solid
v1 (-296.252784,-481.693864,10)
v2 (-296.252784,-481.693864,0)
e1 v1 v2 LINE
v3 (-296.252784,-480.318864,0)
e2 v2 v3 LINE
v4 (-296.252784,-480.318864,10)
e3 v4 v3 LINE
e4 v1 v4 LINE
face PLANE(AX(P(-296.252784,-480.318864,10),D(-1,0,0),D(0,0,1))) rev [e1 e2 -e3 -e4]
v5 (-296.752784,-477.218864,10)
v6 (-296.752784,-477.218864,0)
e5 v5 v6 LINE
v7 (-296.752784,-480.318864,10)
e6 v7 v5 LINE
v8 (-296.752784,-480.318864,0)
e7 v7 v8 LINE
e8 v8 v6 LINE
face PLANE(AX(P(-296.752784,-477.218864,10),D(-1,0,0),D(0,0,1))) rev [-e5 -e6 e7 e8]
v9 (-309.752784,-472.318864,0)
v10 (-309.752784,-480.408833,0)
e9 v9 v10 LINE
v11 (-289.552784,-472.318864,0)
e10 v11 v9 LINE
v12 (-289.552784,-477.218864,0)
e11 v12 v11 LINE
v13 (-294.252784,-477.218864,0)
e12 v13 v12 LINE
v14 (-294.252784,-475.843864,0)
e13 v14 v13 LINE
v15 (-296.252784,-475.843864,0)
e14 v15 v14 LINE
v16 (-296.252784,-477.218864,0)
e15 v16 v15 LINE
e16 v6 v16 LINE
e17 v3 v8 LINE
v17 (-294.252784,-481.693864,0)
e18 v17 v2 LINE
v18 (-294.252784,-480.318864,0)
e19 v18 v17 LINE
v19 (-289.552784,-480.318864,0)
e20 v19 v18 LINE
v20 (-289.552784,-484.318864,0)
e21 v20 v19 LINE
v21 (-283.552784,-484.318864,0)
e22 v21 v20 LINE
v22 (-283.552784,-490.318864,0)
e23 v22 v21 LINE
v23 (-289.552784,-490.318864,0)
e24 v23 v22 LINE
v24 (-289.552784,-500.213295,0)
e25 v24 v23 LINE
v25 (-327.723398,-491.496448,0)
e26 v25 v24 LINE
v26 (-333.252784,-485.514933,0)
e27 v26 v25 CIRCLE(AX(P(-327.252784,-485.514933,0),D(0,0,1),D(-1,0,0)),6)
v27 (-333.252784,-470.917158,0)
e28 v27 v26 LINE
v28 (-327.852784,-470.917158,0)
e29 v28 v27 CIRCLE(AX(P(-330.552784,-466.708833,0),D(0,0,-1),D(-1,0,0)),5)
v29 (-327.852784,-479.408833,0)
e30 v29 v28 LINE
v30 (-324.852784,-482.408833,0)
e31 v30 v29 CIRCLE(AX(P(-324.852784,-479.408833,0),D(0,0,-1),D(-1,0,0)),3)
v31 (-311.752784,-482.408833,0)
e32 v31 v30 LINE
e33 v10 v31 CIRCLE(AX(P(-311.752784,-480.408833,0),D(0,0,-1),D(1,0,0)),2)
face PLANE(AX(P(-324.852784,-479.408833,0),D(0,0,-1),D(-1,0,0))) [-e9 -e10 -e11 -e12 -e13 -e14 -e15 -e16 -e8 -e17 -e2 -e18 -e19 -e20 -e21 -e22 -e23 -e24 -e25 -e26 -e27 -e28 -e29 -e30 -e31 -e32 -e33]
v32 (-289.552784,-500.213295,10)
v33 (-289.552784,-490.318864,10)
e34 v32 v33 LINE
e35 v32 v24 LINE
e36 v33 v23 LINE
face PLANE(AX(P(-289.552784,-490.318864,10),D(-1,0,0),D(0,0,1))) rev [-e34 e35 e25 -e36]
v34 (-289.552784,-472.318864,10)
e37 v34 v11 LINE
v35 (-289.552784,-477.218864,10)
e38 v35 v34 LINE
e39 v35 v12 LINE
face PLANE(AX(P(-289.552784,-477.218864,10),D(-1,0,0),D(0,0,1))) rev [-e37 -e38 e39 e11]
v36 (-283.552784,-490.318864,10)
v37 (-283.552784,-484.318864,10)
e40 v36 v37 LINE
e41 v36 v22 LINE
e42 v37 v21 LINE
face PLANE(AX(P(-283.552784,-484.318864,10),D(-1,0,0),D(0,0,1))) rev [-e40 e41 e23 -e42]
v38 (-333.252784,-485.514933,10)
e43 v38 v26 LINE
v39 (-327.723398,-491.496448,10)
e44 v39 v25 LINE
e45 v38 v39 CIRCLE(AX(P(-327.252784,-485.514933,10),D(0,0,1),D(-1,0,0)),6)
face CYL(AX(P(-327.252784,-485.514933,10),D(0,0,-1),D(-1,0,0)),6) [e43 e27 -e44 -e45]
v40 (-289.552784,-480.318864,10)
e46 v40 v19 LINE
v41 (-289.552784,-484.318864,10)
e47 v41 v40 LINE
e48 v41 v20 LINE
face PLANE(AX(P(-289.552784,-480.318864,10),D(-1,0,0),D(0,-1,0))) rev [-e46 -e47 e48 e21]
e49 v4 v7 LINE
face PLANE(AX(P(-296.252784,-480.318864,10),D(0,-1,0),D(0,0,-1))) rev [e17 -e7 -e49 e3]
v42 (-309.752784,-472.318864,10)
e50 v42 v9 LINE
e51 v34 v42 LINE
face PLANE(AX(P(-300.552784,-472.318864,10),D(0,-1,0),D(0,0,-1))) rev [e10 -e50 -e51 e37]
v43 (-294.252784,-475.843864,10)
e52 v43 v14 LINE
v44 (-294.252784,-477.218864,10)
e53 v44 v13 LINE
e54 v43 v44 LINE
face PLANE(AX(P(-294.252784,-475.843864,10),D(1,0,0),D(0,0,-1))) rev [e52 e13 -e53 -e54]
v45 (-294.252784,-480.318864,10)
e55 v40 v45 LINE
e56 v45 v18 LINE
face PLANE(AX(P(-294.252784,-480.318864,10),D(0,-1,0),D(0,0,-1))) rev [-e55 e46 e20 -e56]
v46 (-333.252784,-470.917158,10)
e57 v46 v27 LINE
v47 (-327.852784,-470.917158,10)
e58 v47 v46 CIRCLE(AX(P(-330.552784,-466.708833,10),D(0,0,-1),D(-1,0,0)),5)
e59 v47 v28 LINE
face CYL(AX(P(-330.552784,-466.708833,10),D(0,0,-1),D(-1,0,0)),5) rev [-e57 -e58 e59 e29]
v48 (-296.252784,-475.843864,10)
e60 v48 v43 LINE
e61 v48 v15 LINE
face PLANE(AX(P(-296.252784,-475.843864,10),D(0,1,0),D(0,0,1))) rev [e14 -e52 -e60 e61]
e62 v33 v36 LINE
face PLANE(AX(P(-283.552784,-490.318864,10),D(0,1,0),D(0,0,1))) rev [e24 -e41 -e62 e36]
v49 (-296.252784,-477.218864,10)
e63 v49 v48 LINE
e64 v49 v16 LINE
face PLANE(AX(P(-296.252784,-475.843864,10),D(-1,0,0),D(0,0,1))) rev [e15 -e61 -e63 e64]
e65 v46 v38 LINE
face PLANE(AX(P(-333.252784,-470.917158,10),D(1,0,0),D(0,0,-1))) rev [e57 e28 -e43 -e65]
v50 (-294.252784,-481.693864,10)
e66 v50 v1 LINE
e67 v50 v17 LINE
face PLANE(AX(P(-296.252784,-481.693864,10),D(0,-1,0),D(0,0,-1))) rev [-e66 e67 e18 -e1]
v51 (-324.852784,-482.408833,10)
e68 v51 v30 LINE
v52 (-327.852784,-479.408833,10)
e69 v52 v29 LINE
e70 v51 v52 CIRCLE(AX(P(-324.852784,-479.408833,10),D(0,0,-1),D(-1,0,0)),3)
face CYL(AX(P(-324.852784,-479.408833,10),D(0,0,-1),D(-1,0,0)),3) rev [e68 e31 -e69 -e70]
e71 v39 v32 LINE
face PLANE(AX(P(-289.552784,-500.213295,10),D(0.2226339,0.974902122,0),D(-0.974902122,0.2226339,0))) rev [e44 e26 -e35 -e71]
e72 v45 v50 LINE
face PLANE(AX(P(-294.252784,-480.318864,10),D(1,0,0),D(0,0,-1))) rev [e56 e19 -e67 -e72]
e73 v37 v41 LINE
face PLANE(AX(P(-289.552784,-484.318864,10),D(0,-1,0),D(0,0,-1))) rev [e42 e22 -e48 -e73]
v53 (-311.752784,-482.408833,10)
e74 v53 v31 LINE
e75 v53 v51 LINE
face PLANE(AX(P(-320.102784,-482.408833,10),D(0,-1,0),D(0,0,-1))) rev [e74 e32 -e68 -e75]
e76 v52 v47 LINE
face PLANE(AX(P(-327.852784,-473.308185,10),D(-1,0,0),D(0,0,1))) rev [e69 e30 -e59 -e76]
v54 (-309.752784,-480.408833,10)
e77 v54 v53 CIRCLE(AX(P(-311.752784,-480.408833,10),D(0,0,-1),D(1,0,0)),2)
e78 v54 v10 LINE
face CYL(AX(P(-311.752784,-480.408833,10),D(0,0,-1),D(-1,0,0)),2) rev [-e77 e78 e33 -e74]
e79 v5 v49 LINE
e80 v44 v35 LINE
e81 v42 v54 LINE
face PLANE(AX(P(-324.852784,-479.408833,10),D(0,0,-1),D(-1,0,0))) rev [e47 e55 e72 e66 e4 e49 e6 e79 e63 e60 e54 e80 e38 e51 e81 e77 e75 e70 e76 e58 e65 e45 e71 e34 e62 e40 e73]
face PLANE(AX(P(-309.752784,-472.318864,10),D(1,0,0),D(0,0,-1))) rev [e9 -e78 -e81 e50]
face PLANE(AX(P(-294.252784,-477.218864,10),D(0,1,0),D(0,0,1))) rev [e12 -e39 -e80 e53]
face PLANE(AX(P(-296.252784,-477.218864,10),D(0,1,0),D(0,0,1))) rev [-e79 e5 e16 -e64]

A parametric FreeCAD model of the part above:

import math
import FreeCAD as App
import Part
import Sketcher
Q = App.Units.Quantity

doc = App.newDocument("Part")
body = doc.addObject("PartDesign::Body", "Body")

# Sketch on XY plane
sketch1 = body.newObject("Sketcher::SketchObject", "Sketch")
sketch1.AttachmentSupport = (doc.getObject("XY_Plane"), [""])
sketch1.MapMode = "FlatFace"
sketch1.addGeometry(Part.ArcOfCircle(Part.Circle(App.Vector(-324.9, -479.4, 0), App.Vector(0, 0, 1), 3), math.radians(180), math.radians(270)), False)
sketch1.addGeometry(Part.LineSegment(App.Vector(-327.9, -479.4, 0), App.Vector(-327.9, -470.9, 0)), False)
sketch1.addGeometry(Part.ArcOfCircle(Part.Circle(App.Vector(-330.6, -466.7, 0), App.Vector(0, 0, 1), 5), math.radians(-123), math.radians(-57)), False)
sketch1.addGeometry(Part.LineSegment(App.Vector(-333.3, -470.9, 0), App.Vector(-333.3, -485.5, 0)), False)
sketch1.addGeometry(Part.ArcOfCircle(Part.Circle(App.Vector(-327.3, -485.5, 0), App.Vector(0, 0, 1), 6), math.radians(180), math.radians(266)), False)
sketch1.addGeometry(Part.LineSegment(App.Vector(-327.7, -491.5, 0), App.Vector(-289.6, -500.2, 0)), False)
sketch1.addGeometry(Part.LineSegment(App.Vector(-289.6, -500.2, 0), App.Vector(-289.6, -490.3, 0)), False)
sketch1.addGeometry(Part.LineSegment(App.Vector(-289.6, -490.3, 0), App.Vector(-283.6, -490.3, 0)), False)
sketch1.addGeometry(Part.LineSegment(App.Vector(-283.6, -490.3, 0), App.Vector(-283.6, -484.3, 0)), False)
sketch1.addGeometry(Part.LineSegment(App.Vector(-283.6, -484.3, 0), App.Vector(-289.6, -484.3, 0)), False)
sketch1.addGeometry(Part.LineSegment(App.Vector(-289.6, -484.3, 0), App.Vector(-289.6, -480.3, 0)), False)
sketch1.addGeometry(Part.LineSegment(App.Vector(-289.6, -480.3, 0), App.Vector(-294.3, -480.3, 0)), False)
sketch1.addGeometry(Part.LineSegment(App.Vector(-294.3, -480.3, 0), App.Vector(-294.3, -481.7, 0)), False)
sketch1.addGeometry(Part.LineSegment(App.Vector(-294.3, -481.7, 0), App.Vector(-296.3, -481.7, 0)), False)
sketch1.addGeometry(Part.LineSegment(App.Vector(-296.3, -481.7, 0), App.Vector(-296.3, -480.3, 0)), False)
sketch1.addGeometry(Part.LineSegment(App.Vector(-296.3, -480.3, 0), App.Vector(-296.8, -480.3, 0)), False)
sketch1.addGeometry(Part.LineSegment(App.Vector(-296.8, -480.3, 0), App.Vector(-296.8, -477.2, 0)), False)
sketch1.addGeometry(Part.LineSegment(App.Vector(-296.8, -477.2, 0), App.Vector(-296.3, -477.2, 0)), False)
sketch1.addGeometry(Part.LineSegment(App.Vector(-296.3, -477.2, 0), App.Vector(-296.3, -475.8, 0)), False)
sketch1.addGeometry(Part.LineSegment(App.Vector(-296.3, -475.8, 0), App.Vector(-294.3, -475.8, 0)), False)
sketch1.addGeometry(Part.LineSegment(App.Vector(-294.3, -475.8, 0), App.Vector(-294.3, -477.2, 0)), False)
sketch1.addGeometry(Part.LineSegment(App.Vector(-294.3, -477.2, 0), App.Vector(-289.6, -477.2, 0)), False)
sketch1.addGeometry(Part.LineSegment(App.Vector(-289.6, -477.2, 0), App.Vector(-289.6, -472.3, 0)), False)
sketch1.addGeometry(Part.LineSegment(App.Vector(-289.6, -472.3, 0), App.Vector(-309.8, -472.3, 0)), False)
sketch1.addGeometry(Part.LineSegment(App.Vector(-309.8, -472.3, 0), App.Vector(-309.8, -480.4, 0)), False)
sketch1.addGeometry(Part.ArcOfCircle(Part.Circle(App.Vector(-311.8, -480.4, 0), App.Vector(0, 0, 1), 2), math.radians(-90), math.radians(0)), False)
sketch1.addGeometry(Part.LineSegment(App.Vector(-311.8, -482.4, 0), App.Vector(-324.9, -482.4, 0)), False)
sketch1.addConstraint(Sketcher.Constraint("Tangent", 0, 1, 1, 1))
sketch1.addConstraint(Sketcher.Constraint("Coincident", 1, 2, 2, 2))
sketch1.addConstraint(Sketcher.Constraint("Coincident", 2, 1, 3, 1))
sketch1.addConstraint(Sketcher.Constraint("Tangent", 3, 2, 4, 1))
sketch1.addConstraint(Sketcher.Constraint("Coincident", 4, 2, 5, 1))
sketch1.addConstraint(Sketcher.Constraint("Coincident", 5, 2, 6, 1))
sketch1.addConstraint(Sketcher.Constraint("Coincident", 6, 2, 7, 1))
sketch1.addConstraint(Sketcher.Constraint("Coincident", 7, 2, 8, 1))
sketch1.addConstraint(Sketcher.Constraint("Coincident", 8, 2, 9, 1))
sketch1.addConstraint(Sketcher.Constraint("Coincident", 9, 2, 10, 1))
sketch1.addConstraint(Sketcher.Constraint("Coincident", 10, 2, 11, 1))
sketch1.addConstraint(Sketcher.Constraint("Coincident", 11, 2, 12, 1))
sketch1.addConstraint(Sketcher.Constraint("Coincident", 12, 2, 13, 1))
sketch1.addConstraint(Sketcher.Constraint("Coincident", 13, 2, 14, 1))
sketch1.addConstraint(Sketcher.Constraint("Coincident", 14, 2, 15, 1))
sketch1.addConstraint(Sketcher.Constraint("Coincident", 15, 2, 16, 1))
sketch1.addConstraint(Sketcher.Constraint("Coincident", 16, 2, 17, 1))
sketch1.addConstraint(Sketcher.Constraint("Coincident", 17, 2, 18, 1))
sketch1.addConstraint(Sketcher.Constraint("Coincident", 18, 2, 19, 1))
sketch1.addConstraint(Sketcher.Constraint("Coincident", 19, 2, 20, 1))
sketch1.addConstraint(Sketcher.Constraint("Coincident", 20, 2, 21, 1))
sketch1.addConstraint(Sketcher.Constraint("Coincident", 21, 2, 22, 1))
sketch1.addConstraint(Sketcher.Constraint("Coincident", 22, 2, 23, 1))
sketch1.addConstraint(Sketcher.Constraint("Coincident", 23, 2, 24, 1))
sketch1.addConstraint(Sketcher.Constraint("Tangent", 24, 2, 25, 2))
sketch1.addConstraint(Sketcher.Constraint("Tangent", 25, 1, 26, 1))
sketch1.addConstraint(Sketcher.Constraint("Tangent", 26, 2, 0, 2))
sketch1.addConstraint(Sketcher.Constraint("Vertical", 1))
sketch1.addConstraint(Sketcher.Constraint("Vertical", 3))
sketch1.addConstraint(Sketcher.Constraint("Vertical", 6))
sketch1.addConstraint(Sketcher.Constraint("Horizontal", 7))
sketch1.addConstraint(Sketcher.Constraint("Vertical", 8))
sketch1.addConstraint(Sketcher.Constraint("Horizontal", 9))
sketch1.addConstraint(Sketcher.Constraint("Vertical", 10))
sketch1.addConstraint(Sketcher.Constraint("Horizontal", 11))
sketch1.addConstraint(Sketcher.Constraint("Vertical", 12))
sketch1.addConstraint(Sketcher.Constraint("Horizontal", 13))
sketch1.addConstraint(Sketcher.Constraint("Vertical", 14))
sketch1.addConstraint(Sketcher.Constraint("Horizontal", 15))
sketch1.addConstraint(Sketcher.Constraint("Vertical", 16))
sketch1.addConstraint(Sketcher.Constraint("Horizontal", 17))
sketch1.addConstraint(Sketcher.Constraint("Vertical", 18))
sketch1.addConstraint(Sketcher.Constraint("Horizontal", 19))
sketch1.addConstraint(Sketcher.Constraint("Vertical", 20))
sketch1.addConstraint(Sketcher.Constraint("Horizontal", 21))
sketch1.addConstraint(Sketcher.Constraint("Vertical", 22))
sketch1.addConstraint(Sketcher.Constraint("Horizontal", 23))
sketch1.addConstraint(Sketcher.Constraint("Vertical", 24))
sketch1.addConstraint(Sketcher.Constraint("Horizontal", 26))
sketch1.addConstraint(Sketcher.Constraint("Horizontal", 1, 2, 2, 1))
sketch1.addConstraint(Sketcher.Constraint("Horizontal", 11, 2, 14, 2))
sketch1.addConstraint(Sketcher.Constraint("Horizontal", 17, 2, 20, 2))
sketch1.addConstraint(Sketcher.Constraint("Vertical", 6, 2, 9, 2))
sketch1.addConstraint(Sketcher.Constraint("Vertical", 14, 2, 17, 2))
sketch1.addConstraint(Sketcher.Constraint("Vertical", 12, 2, 19, 2))
sketch1.addConstraint(Sketcher.Constraint("Vertical", 10, 2, 21, 2))
sketch1.addConstraint(Sketcher.Constraint("Equal", 9, 8))
sketch1.addConstraint(Sketcher.Constraint("Equal", 14, 18))
sketch1.addConstraint(Sketcher.Constraint("Radius", 0, Q("3 mm")))
sketch1.addConstraint(Sketcher.Constraint("Radius", 2, Q("5 mm")))
sketch1.addConstraint(Sketcher.Constraint("Radius", 4, Q("6 mm")))
sketch1.addConstraint(Sketcher.Constraint("Radius", 25, Q("2 mm")))
sketch1.addConstraint(Sketcher.Constraint("DistanceX", 7, 1, 7, 2, Q("6 mm")))
sketch1.addConstraint(Sketcher.Constraint("DistanceX", 13, 2, 13, 1, Q("2 mm")))
sketch1.addConstraint(Sketcher.Constraint("DistanceY", 10, 1, 10, 2, Q("4 mm")))
sketch1.addConstraint(Sketcher.Constraint("DistanceX", 11, 2, 11, 1, Q("4.7 mm")))
sketch1.addConstraint(Sketcher.Constraint("DistanceX", 15, 2, 15, 1, Q("0.5 mm")))
sketch1.addConstraint(Sketcher.Constraint("DistanceX", 23, 2, 23, 1, Q("20.2 mm")))
sketch1.addConstraint(Sketcher.Constraint("DistanceX", 26, 2, 26, 1, Q("13.1 mm")))
sketch1.addConstraint(Sketcher.Constraint("DistanceY", 16, 1, 16, 2, Q("3.1 mm")))
sketch1.addConstraint(Sketcher.Constraint("DistanceY", 22, 1, 22, 2, Q("4.9 mm")))
sketch1.addConstraint(Sketcher.Constraint("DistanceX", 2, 3, 0, 3, Q("5.7 mm")))
sketch1.addConstraint(Sketcher.Constraint("DistanceY", 0, 3, 2, 3, Q("12.7 mm")))
sketch1.addConstraint(Sketcher.Constraint("DistanceY", 12, 2, 12, 1, Q("1.375 mm")))
sketch1.addConstraint(Sketcher.Constraint("DistanceY", 6, 1, 6, 2, Q("9.894431 mm")))
sketch1.addConstraint(Sketcher.Constraint("DistanceY", 24, 2, 24, 1, Q("8.089969 mm")))
sketch1.addConstraint(Sketcher.Constraint("DistanceY", 4, 3, 0, 3, Q("6.1061 mm")))
sketch1.addConstraint(Sketcher.Constraint("Distance", 5, Q("39.153278 mm")))
sketch1.addConstraint(Sketcher.Constraint("DistanceY", 1, 2, -1, 1, Q("470.917158 mm")))
sketch1.addConstraint(Sketcher.Constraint("DistanceX", 0, 3, -1, 1, Q("324.852784 mm")))
pad1 = body.newObject("PartDesign::Pad", "Pad")
pad1.Profile = sketch1
pad1.Length = 10

doc.recompute()
